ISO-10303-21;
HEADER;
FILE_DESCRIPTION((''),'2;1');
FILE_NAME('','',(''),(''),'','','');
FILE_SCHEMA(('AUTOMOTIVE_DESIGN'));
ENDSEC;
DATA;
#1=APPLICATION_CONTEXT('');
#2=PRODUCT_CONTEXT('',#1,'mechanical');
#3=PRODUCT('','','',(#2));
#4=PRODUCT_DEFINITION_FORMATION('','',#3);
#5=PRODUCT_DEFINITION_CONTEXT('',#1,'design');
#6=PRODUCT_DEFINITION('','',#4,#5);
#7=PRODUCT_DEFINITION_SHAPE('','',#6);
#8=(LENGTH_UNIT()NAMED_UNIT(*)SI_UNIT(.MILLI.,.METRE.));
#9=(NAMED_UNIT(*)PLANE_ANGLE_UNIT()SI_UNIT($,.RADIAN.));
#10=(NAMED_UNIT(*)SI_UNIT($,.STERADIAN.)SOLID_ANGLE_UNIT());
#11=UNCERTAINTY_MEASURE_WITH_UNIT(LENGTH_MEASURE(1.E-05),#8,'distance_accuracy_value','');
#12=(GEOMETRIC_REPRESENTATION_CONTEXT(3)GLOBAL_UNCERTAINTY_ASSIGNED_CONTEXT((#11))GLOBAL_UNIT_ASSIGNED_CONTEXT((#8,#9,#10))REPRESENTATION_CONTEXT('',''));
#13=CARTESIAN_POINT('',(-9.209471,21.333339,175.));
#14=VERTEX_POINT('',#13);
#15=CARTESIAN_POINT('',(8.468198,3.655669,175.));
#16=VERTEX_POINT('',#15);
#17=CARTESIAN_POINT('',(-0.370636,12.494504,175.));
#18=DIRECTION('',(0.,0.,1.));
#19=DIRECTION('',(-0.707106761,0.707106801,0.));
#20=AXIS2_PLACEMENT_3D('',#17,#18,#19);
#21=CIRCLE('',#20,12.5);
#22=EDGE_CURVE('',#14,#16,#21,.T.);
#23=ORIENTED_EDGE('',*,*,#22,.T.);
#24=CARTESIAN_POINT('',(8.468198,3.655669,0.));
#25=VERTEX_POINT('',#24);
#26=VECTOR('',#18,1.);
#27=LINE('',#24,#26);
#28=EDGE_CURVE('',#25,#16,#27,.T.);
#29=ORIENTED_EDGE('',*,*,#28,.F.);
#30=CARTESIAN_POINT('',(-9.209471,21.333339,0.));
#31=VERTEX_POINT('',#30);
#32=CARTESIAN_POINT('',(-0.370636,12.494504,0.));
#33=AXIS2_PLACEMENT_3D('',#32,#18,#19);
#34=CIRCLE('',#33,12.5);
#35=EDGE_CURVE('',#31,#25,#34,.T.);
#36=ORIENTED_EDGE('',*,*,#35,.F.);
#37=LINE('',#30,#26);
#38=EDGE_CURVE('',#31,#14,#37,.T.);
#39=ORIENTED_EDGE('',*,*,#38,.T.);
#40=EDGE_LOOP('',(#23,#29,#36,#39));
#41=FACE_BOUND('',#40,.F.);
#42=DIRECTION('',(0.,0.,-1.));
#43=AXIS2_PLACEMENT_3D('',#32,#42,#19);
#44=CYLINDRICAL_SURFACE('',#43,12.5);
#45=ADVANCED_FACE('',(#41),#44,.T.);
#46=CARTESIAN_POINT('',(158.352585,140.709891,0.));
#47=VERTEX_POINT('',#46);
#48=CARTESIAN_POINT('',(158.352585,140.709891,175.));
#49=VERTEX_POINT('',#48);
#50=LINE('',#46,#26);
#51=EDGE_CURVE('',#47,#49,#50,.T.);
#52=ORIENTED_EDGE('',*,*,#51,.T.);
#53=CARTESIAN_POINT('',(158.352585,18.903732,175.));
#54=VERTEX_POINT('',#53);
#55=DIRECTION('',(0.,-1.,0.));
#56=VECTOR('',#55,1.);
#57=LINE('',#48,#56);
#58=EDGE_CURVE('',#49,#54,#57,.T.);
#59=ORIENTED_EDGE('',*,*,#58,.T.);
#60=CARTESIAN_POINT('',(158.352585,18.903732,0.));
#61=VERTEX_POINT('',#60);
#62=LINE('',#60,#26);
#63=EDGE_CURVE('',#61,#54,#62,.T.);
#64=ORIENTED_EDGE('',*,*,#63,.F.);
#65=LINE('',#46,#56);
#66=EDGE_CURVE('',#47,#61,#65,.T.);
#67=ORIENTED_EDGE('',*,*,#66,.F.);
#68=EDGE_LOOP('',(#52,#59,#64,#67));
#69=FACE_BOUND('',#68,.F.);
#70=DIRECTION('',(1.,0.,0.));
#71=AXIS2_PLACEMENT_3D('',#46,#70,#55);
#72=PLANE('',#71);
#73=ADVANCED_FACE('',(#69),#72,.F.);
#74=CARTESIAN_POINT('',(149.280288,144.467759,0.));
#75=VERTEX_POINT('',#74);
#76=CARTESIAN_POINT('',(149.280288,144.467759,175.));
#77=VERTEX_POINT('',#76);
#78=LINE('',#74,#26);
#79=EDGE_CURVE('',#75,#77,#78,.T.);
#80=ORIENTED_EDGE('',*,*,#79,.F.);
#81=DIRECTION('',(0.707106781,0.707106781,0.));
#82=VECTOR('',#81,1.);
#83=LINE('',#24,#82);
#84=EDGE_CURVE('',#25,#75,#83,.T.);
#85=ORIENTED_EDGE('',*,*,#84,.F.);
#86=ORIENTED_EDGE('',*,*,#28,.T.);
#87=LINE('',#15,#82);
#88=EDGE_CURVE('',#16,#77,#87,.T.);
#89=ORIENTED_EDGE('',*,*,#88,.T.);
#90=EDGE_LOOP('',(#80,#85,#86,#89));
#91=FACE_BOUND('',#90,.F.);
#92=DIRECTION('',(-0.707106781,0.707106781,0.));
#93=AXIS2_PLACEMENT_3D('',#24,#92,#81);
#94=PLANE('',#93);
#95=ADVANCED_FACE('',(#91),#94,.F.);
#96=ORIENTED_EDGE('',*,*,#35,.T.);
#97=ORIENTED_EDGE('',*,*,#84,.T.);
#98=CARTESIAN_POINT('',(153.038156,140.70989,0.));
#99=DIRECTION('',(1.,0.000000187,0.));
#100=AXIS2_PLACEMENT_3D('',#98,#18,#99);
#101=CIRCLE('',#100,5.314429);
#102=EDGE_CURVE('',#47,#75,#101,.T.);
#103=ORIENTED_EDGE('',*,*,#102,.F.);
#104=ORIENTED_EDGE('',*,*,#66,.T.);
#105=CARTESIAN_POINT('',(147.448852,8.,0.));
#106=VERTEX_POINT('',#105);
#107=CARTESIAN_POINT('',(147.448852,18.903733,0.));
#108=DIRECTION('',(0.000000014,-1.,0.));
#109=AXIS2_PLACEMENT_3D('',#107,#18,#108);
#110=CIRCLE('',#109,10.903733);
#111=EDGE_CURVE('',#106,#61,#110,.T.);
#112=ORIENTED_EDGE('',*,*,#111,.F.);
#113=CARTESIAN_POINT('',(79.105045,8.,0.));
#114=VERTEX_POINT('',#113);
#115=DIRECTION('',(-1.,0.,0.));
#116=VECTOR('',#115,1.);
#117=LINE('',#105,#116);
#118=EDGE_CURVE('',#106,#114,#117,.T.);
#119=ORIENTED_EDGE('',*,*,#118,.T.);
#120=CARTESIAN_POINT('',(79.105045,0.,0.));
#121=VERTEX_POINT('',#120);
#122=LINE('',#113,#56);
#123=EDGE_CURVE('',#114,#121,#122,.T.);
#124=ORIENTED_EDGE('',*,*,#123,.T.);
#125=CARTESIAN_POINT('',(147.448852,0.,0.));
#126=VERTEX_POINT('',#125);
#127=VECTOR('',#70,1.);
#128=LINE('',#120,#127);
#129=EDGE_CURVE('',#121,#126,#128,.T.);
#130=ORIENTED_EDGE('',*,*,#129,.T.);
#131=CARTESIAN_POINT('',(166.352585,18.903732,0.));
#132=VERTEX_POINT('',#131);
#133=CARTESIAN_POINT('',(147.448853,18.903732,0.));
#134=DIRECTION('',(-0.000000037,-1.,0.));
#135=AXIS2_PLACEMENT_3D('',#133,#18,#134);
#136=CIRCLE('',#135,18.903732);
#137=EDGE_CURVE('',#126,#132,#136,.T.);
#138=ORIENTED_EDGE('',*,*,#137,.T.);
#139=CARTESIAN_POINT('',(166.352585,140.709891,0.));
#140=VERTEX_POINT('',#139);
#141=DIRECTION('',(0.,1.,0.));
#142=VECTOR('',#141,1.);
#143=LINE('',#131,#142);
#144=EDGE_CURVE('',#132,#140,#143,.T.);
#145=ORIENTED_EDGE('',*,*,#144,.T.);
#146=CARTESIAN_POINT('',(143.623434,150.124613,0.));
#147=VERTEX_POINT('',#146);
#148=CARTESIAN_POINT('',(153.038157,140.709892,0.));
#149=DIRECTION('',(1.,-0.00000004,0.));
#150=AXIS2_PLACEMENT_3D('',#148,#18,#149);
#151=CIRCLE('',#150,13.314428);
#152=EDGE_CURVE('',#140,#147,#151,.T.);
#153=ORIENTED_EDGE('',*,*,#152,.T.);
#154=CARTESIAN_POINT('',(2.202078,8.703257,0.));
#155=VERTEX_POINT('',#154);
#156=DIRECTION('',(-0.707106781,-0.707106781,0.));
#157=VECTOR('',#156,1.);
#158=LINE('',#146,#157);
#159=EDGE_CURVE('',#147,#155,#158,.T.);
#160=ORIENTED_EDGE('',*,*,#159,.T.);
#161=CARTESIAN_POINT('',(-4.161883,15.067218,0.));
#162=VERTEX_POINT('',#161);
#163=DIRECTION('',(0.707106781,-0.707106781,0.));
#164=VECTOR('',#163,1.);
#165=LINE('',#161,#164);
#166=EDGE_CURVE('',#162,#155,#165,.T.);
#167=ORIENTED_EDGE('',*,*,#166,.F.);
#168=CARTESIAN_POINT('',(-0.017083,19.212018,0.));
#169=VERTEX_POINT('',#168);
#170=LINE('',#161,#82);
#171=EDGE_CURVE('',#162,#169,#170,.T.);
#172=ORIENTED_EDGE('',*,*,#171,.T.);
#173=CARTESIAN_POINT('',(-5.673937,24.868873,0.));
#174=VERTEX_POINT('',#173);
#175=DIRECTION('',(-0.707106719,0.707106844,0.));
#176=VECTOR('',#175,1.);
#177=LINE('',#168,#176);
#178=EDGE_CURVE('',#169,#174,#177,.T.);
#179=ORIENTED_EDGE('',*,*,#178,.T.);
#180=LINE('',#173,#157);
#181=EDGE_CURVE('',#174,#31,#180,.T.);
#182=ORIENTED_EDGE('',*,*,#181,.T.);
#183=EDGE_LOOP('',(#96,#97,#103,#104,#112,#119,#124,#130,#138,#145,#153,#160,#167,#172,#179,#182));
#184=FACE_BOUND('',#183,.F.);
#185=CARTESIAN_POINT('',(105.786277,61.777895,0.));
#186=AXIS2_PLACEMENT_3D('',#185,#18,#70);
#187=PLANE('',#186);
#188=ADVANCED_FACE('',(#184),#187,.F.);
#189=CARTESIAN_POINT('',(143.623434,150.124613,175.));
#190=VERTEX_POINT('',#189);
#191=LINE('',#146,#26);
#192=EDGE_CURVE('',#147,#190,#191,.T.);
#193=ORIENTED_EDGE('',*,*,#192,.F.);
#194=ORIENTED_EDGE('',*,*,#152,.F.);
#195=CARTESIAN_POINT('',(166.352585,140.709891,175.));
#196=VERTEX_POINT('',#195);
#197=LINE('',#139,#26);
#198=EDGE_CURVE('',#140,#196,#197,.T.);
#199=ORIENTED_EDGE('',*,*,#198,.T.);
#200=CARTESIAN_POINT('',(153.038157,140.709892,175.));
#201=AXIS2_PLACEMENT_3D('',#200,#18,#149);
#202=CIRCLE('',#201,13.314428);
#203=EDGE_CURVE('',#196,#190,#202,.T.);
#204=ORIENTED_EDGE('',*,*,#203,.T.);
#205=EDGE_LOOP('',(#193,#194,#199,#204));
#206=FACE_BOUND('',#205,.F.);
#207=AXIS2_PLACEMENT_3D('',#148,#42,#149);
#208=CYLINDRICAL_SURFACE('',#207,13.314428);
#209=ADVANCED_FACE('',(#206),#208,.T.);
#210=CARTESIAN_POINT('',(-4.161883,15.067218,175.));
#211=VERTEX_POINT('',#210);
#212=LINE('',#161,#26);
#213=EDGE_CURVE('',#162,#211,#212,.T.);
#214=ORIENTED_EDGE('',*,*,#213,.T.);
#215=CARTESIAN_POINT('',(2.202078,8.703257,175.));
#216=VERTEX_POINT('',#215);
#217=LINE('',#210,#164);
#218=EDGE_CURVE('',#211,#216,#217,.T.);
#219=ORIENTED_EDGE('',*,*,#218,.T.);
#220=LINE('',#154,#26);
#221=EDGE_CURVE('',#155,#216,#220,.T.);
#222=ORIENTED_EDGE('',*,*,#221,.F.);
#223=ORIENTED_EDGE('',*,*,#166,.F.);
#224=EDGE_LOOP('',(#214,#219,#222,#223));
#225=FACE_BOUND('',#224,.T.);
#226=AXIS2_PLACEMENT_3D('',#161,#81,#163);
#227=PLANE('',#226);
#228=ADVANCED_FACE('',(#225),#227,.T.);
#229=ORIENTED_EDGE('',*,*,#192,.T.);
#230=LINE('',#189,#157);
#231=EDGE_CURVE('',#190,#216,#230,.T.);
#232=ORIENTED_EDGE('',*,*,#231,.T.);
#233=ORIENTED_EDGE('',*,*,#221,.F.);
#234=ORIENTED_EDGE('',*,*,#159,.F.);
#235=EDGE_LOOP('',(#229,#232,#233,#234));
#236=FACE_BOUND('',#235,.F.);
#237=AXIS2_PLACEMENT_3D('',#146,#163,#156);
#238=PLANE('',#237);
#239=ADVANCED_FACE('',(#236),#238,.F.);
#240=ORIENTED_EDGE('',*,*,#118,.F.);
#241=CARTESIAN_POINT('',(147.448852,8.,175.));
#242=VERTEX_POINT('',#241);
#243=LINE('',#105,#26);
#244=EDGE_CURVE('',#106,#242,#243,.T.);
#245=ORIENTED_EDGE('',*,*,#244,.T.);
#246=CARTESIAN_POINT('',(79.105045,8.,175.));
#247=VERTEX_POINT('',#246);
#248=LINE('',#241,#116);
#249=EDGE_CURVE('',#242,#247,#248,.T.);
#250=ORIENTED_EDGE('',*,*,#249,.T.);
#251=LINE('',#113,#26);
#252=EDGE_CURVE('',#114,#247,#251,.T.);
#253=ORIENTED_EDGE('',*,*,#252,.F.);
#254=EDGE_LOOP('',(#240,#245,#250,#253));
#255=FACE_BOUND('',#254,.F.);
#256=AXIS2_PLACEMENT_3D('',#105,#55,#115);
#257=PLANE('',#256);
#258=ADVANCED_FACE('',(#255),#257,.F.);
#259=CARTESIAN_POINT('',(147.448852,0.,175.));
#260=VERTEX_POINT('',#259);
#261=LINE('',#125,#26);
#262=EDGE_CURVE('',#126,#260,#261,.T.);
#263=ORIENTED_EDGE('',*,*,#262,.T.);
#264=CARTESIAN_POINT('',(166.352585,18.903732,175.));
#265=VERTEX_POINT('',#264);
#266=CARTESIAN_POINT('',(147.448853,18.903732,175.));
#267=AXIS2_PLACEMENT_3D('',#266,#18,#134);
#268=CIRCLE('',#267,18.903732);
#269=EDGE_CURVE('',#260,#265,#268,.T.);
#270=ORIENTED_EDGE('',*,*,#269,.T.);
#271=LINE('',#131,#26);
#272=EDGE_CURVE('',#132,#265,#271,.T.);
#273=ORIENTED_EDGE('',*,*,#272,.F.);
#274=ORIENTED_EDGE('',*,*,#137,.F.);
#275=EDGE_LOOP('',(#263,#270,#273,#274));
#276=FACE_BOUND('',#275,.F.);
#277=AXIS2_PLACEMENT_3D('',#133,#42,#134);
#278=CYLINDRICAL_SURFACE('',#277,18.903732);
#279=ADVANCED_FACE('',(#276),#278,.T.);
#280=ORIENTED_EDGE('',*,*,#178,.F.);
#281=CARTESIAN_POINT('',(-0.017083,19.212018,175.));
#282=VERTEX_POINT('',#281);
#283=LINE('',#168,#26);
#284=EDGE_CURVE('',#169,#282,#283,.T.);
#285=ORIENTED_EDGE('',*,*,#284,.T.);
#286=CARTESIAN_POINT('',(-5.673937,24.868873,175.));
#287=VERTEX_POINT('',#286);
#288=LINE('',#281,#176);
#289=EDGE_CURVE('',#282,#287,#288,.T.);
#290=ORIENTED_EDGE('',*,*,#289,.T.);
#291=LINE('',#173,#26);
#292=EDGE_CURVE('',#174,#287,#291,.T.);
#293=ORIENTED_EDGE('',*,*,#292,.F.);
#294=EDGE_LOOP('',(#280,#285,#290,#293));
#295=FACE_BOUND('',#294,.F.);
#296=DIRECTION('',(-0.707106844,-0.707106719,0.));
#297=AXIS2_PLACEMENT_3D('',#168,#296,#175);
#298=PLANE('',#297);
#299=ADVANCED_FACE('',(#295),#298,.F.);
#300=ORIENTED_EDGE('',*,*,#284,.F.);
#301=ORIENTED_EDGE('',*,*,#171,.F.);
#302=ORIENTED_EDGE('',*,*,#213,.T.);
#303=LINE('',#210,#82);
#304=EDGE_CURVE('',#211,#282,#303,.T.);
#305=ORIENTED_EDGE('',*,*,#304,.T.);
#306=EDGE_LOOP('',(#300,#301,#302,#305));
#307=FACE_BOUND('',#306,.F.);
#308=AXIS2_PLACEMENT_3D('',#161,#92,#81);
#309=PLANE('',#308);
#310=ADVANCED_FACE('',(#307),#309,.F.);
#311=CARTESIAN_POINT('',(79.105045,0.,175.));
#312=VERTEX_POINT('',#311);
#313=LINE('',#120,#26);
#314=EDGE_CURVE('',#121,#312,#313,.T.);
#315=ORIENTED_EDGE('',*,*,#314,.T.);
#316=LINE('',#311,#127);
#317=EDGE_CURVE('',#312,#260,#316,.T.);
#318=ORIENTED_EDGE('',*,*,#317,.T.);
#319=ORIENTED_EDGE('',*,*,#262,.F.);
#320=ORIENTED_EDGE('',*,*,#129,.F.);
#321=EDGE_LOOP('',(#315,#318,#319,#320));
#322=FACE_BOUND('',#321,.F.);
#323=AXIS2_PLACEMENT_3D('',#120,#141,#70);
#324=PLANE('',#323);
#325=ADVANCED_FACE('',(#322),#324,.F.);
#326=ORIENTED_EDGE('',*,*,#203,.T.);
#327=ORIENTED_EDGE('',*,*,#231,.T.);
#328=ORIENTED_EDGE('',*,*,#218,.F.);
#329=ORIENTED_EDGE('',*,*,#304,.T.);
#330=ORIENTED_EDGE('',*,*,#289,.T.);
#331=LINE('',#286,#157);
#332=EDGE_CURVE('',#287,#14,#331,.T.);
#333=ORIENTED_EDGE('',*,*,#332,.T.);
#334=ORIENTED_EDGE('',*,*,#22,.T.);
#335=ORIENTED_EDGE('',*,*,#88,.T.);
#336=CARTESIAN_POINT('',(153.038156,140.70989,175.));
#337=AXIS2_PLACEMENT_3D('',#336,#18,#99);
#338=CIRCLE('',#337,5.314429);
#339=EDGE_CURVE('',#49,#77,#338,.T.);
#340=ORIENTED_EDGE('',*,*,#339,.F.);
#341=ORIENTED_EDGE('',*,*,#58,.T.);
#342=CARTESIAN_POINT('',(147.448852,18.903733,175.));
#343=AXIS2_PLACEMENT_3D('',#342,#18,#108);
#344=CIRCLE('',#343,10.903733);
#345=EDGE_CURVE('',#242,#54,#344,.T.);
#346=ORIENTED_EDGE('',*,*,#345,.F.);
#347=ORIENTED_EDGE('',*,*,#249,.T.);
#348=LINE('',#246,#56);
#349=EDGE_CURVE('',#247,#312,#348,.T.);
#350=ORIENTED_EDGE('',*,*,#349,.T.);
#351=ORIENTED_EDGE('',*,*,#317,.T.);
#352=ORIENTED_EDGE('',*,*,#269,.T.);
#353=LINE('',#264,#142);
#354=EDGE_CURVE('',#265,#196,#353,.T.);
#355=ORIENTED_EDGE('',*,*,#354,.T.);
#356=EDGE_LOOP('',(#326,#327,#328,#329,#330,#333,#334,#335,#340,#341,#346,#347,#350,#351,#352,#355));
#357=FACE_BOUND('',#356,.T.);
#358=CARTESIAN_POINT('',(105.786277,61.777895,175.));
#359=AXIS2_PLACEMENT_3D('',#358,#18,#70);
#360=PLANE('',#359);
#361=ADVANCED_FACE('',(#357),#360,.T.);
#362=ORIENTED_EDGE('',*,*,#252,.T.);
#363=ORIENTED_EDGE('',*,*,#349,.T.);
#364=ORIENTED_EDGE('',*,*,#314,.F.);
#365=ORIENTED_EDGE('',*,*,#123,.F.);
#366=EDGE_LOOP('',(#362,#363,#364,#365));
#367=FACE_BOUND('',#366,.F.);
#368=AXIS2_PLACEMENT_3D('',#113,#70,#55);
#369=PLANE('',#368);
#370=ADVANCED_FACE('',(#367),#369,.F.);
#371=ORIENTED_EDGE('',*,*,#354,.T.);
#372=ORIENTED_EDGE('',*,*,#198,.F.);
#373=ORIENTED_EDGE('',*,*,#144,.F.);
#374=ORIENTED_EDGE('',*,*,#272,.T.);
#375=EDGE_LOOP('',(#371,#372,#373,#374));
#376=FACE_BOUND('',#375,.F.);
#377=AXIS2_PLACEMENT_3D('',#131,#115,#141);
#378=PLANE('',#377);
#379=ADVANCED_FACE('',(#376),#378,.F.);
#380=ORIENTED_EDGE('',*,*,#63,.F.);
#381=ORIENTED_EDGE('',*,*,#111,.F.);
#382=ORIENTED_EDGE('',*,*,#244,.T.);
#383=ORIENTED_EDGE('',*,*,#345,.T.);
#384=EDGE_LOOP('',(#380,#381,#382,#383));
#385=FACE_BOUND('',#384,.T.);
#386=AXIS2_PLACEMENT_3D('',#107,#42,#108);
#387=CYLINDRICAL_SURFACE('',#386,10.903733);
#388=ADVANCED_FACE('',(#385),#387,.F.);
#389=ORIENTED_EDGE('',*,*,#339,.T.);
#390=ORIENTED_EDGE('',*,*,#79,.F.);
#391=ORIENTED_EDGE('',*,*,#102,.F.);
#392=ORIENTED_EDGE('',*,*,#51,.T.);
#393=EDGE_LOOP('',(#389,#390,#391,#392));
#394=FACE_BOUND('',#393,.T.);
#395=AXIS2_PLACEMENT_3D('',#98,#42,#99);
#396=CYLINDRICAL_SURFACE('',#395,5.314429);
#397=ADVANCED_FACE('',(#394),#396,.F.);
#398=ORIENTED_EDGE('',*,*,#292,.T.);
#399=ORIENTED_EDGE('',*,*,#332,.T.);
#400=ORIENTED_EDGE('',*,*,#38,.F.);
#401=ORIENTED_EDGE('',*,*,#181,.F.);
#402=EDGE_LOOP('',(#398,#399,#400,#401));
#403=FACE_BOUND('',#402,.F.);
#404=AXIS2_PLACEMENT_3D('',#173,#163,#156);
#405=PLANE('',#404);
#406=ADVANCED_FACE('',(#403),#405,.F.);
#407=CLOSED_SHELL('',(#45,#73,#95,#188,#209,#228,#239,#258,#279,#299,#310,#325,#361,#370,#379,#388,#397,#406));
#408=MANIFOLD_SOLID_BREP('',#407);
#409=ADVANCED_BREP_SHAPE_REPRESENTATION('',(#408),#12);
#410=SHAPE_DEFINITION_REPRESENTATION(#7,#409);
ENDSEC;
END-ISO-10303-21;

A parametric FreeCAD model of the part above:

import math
import FreeCAD as App
import Part
import Sketcher

V = App.Vector
Q = App.Units.Quantity

doc = App.newDocument("Part")
body = doc.addObject("PartDesign::Body", "Body")

sketch1 = body.newObject("Sketcher::SketchObject", "Sketch")
sketch1.AttachmentSupport = (doc.getObject("XY_Plane"), [""])
sketch1.MapMode = "FlatFace"
sketch1.addGeometry([
    Part.LineSegment(V(8.468198, 3.655669, 0), V(149.280288, 144.467759, 0)),
    Part.ArcOfCircle(Part.Circle(V(153.038156, 140.70989, 0), V(0, 0, 1), 5.314429), math.radians(0.000011), math.radians(134.999994)),
    Part.LineSegment(V(158.352585, 140.709891, 0), V(158.352585, 18.903732, 0)),
    Part.ArcOfCircle(Part.Circle(V(147.448852, 18.903733, 0), V(0, 0, 1), 10.903733), math.radians(-89.999999), math.radians(-0.000006)),
    Part.LineSegment(V(147.448852, 8, 0), V(79.105045, 8, 0)),
    Part.LineSegment(V(79.105045, 8, 0), V(79.105045, 0, 0)),
    Part.LineSegment(V(79.105045, 0, 0), V(147.448852, 0, 0)),
    Part.ArcOfCircle(Part.Circle(V(147.448853, 18.903732, 0), V(0, 0, 1), 18.903732), math.radians(-90.000002), math.radians(-0.000001)),
    Part.LineSegment(V(166.352585, 18.903732, 0), V(166.352585, 140.709891, 0)),
    Part.ArcOfCircle(Part.Circle(V(153.038157, 140.709892, 0), V(0, 0, 1), 13.314428), math.radians(-0.000002), math.radians(135.000005)),
    Part.LineSegment(V(143.623434, 150.124613, 0), V(2.202078, 8.703257, 0)),
    Part.LineSegment(V(2.202078, 8.703257, 0), V(-4.161883, 15.067218, 0)),
    Part.LineSegment(V(-4.161883, 15.067218, 0), V(-0.017083, 19.212018, 0)),
    Part.LineSegment(V(-0.017083, 19.212018, 0), V(-5.673937, 24.868873, 0)),
    Part.LineSegment(V(-5.673937, 24.868873, 0), V(-9.209471, 21.333339, 0)),
    Part.ArcOfCircle(Part.Circle(V(-0.370636, 12.494504, 0), V(0, 0, 1), 12.5), math.radians(134.999998), math.radians(314.999998)),
], False)
sketch1.addConstraint([
    Sketcher.Constraint("Tangent", 0, 2, 1, 2),
    Sketcher.Constraint("Tangent", 1, 1, 2, 1),
    Sketcher.Constraint("Tangent", 2, 2, 3, 2),
    Sketcher.Constraint("Tangent", 3, 1, 4, 1),
    Sketcher.Constraint("Coincident", 4, 2, 5, 1),
    Sketcher.Constraint("Coincident", 5, 2, 6, 1),
    Sketcher.Constraint("Tangent", 6, 2, 7, 1),
    Sketcher.Constraint("Tangent", 7, 2, 8, 1),
    Sketcher.Constraint("Tangent", 8, 2, 9, 1),
    Sketcher.Constraint("Tangent", 9, 2, 10, 1),
    Sketcher.Constraint("Coincident", 10, 2, 11, 1),
    Sketcher.Constraint("Coincident", 11, 2, 12, 1),
    Sketcher.Constraint("Coincident", 12, 2, 13, 1),
    Sketcher.Constraint("Coincident", 13, 2, 14, 1),
    Sketcher.Constraint("Tangent", 14, 2, 15, 1),
    Sketcher.Constraint("Tangent", 15, 2, 0, 1),
    Sketcher.Constraint("Vertical", 2),
    Sketcher.Constraint("Horizontal", 4),
    Sketcher.Constraint("Vertical", 5),
    Sketcher.Constraint("Horizontal", 6),
    Sketcher.Constraint("Vertical", 8),
    Sketcher.Constraint("Coincident", 7, 3, 3, 3),
    Sketcher.Constraint("Coincident", 9, 3, 1, 3),
    Sketcher.Constraint("PointOnObject", 5, 2, -1),
    Sketcher.Constraint("Parallel", 0, 10),
    Sketcher.Constraint("Perpendicular", 10, 11),
    Sketcher.Constraint("Perpendicular", 11, 12),
    Sketcher.Constraint("Perpendicular", 12, 13),
    Sketcher.Constraint("Perpendicular", 13, 14),
    Sketcher.Constraint("Radius", 15, Q("12.5 mm")),
    Sketcher.Constraint("DistanceY", 5, 2, 5, 1, Q("8 mm")),
    Sketcher.Constraint("Angle", 0, Q("45 deg")),
    Sketcher.Constraint("Distance", 10, Q("200 mm")),
    Sketcher.Constraint("Distance", 11, Q("9 mm")),
    Sketcher.Constraint("Distance", 14, Q("5 mm")),
    Sketcher.Constraint("Radius", 1, Q("5.314429 mm")),
    Sketcher.Constraint("Radius", 3, Q("10.903733 mm")),
    Sketcher.Constraint("DistanceY", 2, 2, 2, 1, Q("121.806159 mm")),
    Sketcher.Constraint("DistanceX", 11, 2, 12, 2, Q("4.1448 mm")),
    Sketcher.Constraint("DistanceX", 4, 2, 4, 1, Q("68.343807 mm")),
    Sketcher.Constraint("DistanceX", -1, 1, 3, 3, Q("147.448852 mm")),
])
pad1 = body.newObject("PartDesign::Pad", "Pad")
pad1.Profile = sketch1
pad1.Length = 175

doc.recompute()
